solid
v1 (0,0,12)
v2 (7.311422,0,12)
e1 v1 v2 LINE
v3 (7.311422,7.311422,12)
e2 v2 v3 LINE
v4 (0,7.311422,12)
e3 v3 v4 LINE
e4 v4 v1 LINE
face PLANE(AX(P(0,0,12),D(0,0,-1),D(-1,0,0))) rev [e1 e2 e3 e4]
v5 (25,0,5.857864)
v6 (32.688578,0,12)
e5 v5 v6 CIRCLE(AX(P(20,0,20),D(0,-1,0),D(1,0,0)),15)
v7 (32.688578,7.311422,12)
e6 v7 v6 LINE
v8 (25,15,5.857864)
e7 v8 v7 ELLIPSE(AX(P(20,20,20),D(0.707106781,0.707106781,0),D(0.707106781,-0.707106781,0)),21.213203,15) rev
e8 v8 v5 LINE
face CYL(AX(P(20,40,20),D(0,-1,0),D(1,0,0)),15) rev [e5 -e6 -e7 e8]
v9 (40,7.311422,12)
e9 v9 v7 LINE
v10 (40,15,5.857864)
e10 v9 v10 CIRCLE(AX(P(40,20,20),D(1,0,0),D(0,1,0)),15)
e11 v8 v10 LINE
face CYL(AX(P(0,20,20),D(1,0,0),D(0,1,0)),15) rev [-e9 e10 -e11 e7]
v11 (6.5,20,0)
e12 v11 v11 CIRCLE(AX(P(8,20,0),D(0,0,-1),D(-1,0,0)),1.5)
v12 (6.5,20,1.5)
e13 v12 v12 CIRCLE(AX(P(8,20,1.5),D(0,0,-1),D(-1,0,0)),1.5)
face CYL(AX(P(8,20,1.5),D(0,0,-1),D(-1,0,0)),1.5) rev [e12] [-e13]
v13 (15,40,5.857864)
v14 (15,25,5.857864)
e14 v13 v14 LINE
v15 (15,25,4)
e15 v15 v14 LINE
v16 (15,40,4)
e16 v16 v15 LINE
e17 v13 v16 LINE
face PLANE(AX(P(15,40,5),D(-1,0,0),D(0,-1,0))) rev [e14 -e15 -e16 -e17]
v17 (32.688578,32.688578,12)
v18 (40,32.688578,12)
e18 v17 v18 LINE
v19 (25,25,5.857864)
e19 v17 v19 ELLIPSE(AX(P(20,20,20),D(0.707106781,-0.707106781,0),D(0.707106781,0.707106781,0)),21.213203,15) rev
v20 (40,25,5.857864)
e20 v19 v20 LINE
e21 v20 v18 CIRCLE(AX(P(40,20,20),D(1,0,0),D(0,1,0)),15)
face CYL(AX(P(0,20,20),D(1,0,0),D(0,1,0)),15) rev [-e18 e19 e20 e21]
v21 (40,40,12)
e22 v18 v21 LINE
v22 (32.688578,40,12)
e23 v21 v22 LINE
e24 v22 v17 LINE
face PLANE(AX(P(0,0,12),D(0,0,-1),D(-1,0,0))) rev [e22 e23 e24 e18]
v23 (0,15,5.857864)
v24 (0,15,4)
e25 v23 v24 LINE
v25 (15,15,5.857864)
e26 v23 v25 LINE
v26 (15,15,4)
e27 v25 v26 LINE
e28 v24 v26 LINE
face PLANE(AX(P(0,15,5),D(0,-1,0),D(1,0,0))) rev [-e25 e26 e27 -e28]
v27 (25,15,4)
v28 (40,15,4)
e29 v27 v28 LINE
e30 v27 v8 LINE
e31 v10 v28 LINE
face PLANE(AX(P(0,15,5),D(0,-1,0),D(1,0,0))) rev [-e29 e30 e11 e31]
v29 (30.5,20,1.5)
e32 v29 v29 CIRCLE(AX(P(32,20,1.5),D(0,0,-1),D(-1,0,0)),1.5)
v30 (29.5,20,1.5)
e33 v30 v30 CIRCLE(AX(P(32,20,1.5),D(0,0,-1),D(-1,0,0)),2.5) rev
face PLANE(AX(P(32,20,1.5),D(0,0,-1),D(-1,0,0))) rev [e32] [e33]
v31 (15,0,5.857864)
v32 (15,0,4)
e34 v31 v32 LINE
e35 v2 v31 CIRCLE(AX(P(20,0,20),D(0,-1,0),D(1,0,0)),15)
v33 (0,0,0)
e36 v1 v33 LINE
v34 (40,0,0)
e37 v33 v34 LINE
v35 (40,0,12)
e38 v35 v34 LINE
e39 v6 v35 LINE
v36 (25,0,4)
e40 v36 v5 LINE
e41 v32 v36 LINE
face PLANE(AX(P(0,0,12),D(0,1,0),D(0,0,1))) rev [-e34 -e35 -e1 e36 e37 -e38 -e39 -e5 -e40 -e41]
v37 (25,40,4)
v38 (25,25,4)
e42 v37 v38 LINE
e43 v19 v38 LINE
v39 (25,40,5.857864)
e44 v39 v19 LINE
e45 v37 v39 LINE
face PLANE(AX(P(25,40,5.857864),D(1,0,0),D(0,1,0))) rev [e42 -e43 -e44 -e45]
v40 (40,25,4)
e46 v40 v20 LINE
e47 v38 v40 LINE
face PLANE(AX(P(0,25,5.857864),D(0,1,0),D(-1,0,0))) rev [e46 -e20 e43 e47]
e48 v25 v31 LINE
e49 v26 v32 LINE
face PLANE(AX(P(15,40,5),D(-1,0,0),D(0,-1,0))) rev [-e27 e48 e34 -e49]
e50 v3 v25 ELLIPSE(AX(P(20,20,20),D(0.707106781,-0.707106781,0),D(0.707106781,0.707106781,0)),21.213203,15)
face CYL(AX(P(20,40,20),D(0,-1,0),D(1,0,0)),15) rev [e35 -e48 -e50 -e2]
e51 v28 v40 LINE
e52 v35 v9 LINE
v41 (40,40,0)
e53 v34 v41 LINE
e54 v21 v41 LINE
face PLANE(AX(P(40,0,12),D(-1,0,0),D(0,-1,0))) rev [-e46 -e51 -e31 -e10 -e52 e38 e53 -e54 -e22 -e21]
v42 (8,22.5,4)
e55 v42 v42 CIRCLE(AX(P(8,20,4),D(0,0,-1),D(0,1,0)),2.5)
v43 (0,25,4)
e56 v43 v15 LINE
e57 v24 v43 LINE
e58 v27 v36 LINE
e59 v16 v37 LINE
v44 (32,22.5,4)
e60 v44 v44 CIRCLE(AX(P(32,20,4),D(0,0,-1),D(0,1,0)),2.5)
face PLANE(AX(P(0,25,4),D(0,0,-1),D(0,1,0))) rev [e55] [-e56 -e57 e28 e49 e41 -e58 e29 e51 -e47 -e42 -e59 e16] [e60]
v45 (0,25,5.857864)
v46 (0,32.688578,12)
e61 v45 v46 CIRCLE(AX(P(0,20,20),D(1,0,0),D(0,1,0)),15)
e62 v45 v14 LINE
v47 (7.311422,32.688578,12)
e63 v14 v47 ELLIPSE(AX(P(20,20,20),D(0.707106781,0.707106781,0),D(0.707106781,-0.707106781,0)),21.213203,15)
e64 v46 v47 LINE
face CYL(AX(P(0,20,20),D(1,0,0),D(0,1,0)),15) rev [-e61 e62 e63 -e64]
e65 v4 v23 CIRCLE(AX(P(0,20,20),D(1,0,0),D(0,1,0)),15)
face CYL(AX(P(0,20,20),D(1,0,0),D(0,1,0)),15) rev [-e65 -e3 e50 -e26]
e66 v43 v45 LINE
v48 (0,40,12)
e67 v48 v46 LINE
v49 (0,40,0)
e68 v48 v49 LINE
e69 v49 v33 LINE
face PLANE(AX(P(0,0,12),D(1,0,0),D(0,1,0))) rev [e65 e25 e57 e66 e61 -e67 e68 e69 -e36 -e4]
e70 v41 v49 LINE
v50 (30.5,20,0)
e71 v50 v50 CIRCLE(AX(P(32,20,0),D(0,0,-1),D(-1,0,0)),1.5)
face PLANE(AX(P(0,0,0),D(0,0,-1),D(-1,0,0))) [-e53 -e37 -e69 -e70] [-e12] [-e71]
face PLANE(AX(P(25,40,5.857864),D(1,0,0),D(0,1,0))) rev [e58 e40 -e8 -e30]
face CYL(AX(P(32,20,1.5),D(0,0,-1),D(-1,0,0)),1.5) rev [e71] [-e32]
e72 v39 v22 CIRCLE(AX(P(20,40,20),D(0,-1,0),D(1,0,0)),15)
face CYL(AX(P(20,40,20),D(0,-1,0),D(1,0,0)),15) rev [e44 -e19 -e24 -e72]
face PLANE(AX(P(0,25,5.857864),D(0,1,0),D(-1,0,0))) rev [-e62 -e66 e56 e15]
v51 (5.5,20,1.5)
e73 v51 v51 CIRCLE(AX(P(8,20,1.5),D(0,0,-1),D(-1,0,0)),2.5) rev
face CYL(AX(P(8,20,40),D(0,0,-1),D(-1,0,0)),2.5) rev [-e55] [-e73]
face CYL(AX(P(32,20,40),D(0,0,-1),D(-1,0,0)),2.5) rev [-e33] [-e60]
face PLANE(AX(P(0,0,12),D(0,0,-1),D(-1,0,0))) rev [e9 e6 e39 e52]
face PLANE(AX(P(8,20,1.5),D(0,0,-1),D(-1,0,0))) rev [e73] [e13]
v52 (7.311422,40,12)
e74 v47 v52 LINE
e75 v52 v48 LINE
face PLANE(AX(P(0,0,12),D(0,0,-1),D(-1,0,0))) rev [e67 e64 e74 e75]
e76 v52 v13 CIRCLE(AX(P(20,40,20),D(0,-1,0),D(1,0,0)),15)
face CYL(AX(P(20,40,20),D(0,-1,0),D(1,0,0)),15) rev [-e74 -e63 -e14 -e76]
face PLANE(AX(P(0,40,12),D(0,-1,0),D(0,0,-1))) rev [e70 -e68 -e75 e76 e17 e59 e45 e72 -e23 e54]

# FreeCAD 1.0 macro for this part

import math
import FreeCAD as App
import Part
import Sketcher

V = App.Vector
Q = App.Units.Quantity


def add_polygon(sketch, points):
    """Adds a closed chain of lines whose ends are joined by coincident constraints."""
    first, n = sketch.GeometryCount, len(points)
    for a, b in zip(points, points[1:] + points[:1]):
        sketch.addGeometry(Part.LineSegment(App.Vector(*a, 0), App.Vector(*b, 0)), False)
    for i in range(n):
        sketch.addConstraint(Sketcher.Constraint("Coincident", first + i, 2, first + (i + 1) % n, 1))

doc = App.newDocument("Part")
body = doc.addObject("PartDesign::Body", "Body")

sketch1 = body.newObject("Sketcher::SketchObject", "Sketch")
sketch1.AttachmentSupport = (doc.getObject("XY_Plane"), [""])
sketch1.MapMode = "FlatFace"
add_polygon(sketch1, [(0, 40), (0, 0), (40, 0), (40, 40)])
sketch1.addConstraint([
    Sketcher.Constraint("Vertical", 0),
    Sketcher.Constraint("Horizontal", 1),
    Sketcher.Constraint("Vertical", 2),
    Sketcher.Constraint("Horizontal", 3),
    Sketcher.Constraint("Coincident", 0, 2, -1, 1),
    Sketcher.Constraint("Equal", 3, 0),
    Sketcher.Constraint("DistanceX", 1, 1, 1, 2, Q("40 mm")),
])
pad1 = body.newObject("PartDesign::Pad", "Pad")
pad1.Profile = sketch1
pad1.Length = 12

sketch2 = body.newObject("Sketcher::SketchObject", "Sketch001")
sketch2.AttachmentSupport = (doc.getObject("YZ_Plane"), [""])
sketch2.MapMode = "FlatFace"
sketch2.AttachmentOffset = App.Placement(V(0, 0, 40), App.Rotation())
sketch2.addGeometry([
    Part.LineSegment(V(15, 4, 0), V(25, 4, 0)),
    Part.LineSegment(V(25, 4, 0), V(25, 5.857864, 0)),
    Part.ArcOfCircle(Part.Circle(V(20, 20, 0), V(0, 0, 1), 15), math.radians(-70.528779), math.radians(250.528779)),
    Part.LineSegment(V(15, 5.857864, 0), V(15, 4, 0)),
], False)
sketch2.addConstraint([
    Sketcher.Constraint("Coincident", 0, 2, 1, 1),
    Sketcher.Constraint("Coincident", 1, 2, 2, 1),
    Sketcher.Constraint("Coincident", 2, 2, 3, 1),
    Sketcher.Constraint("Coincident", 3, 2, 0, 1),
    Sketcher.Constraint("Horizontal", 0),
    Sketcher.Constraint("Vertical", 1),
    Sketcher.Constraint("Vertical", 3),
    Sketcher.Constraint("Horizontal", 1, 2, 2, 2),
    Sketcher.Constraint("Radius", 2, Q("15 mm")),
    Sketcher.Constraint("DistanceX", 0, 1, 0, 2, Q("10 mm")),
    Sketcher.Constraint("DistanceX", -1, 1, 2, 3, Q("20 mm")),
    Sketcher.Constraint("DistanceY", -1, 1, 2, 3, Q("20 mm")),
    Sketcher.Constraint("DistanceY", -1, 1, 0, 2, Q("4 mm")),
])
pocket1 = body.newObject("PartDesign::Pocket", "Pocket")
pocket1.Profile = sketch2
pocket1.Length = 40

sketch3 = body.newObject("Sketcher::SketchObject", "Sketch002")
sketch3.AttachmentSupport = (doc.getObject("XY_Plane"), [""])
sketch3.MapMode = "FlatFace"
sketch3.addGeometry([
    Part.Circle(V(32, 20, 0), V(0, 0, 1), 2.5),
    Part.Circle(V(8, 20, 0), V(0, 0, 1), 2.5),
], False)
sketch3.addConstraint([
    Sketcher.Constraint("Equal", 0, 1),
    Sketcher.Constraint("Horizontal", 0, 3, 1, 3),
    Sketcher.Constraint("Diameter", 0, Q("5 mm")),
    Sketcher.Constraint("DistanceX", -1, 1, 0, 3, Q("32 mm")),
    Sketcher.Constraint("DistanceY", -1, 1, 0, 3, Q("20 mm")),
    Sketcher.Constraint("DistanceX", -1, 1, 1, 3, Q("8 mm")),
])
pocket2 = body.newObject("PartDesign::Pocket", "Pocket001")
pocket2.Profile = sketch3
pocket2.Length = 40
pocket2.Reversed = True

sketch4 = body.newObject("Sketcher::SketchObject", "Sketch003")
sketch4.AttachmentSupport = (doc.getObject("XY_Plane"), [""])
sketch4.MapMode = "FlatFace"
sketch4.addGeometry([
    Part.Circle(V(32, 20, 0), V(0, 0, 1), 2.5),
    Part.Circle(V(32, 20, 0), V(0, 0, 1), 1.5),
    Part.Circle(V(8, 20, 0), V(0, 0, 1), 2.5),
    Part.Circle(V(8, 20, 0), V(0, 0, 1), 1.5),
], False)
sketch4.addConstraint([
    Sketcher.Constraint("Coincident", 1, 3, 0, 3),
    Sketcher.Constraint("Coincident", 3, 3, 2, 3),
    Sketcher.Constraint("Equal", 0, 2),
    Sketcher.Constraint("Equal", 1, 3),
    Sketcher.Constraint("Horizontal", 1, 3, 2, 3),
    Sketcher.Constraint("Diameter", 0, Q("5 mm")),
    Sketcher.Constraint("Diameter", 1, Q("3 mm")),
    Sketcher.Constraint("DistanceX", -1, 1, 0, 3, Q("32 mm")),
    Sketcher.Constraint("DistanceY", -1, 1, 0, 3, Q("20 mm")),
    Sketcher.Constraint("DistanceX", -1, 1, 2, 3, Q("8 mm")),
])
pad2 = body.newObject("PartDesign::Pad", "Pad001")
pad2.Profile = sketch4
pad2.Length = 1.5
doc.recompute()

datumline = body.newObject("PartDesign::Line", "DatumLine")
datumline.Placement = App.Placement(V(20, 20, 0), App.Rotation(V(0, 0, 1), V(0, 0, 1)))
polarpattern = body.newObject("PartDesign::PolarPattern", "PolarPattern")
polarpattern.Originals = [pocket1]
polarpattern.Axis = (datumline, [""])
polarpattern.Angle = 90
polarpattern.Occurrences = 2
body.Tip = polarpattern

doc.recompute()
